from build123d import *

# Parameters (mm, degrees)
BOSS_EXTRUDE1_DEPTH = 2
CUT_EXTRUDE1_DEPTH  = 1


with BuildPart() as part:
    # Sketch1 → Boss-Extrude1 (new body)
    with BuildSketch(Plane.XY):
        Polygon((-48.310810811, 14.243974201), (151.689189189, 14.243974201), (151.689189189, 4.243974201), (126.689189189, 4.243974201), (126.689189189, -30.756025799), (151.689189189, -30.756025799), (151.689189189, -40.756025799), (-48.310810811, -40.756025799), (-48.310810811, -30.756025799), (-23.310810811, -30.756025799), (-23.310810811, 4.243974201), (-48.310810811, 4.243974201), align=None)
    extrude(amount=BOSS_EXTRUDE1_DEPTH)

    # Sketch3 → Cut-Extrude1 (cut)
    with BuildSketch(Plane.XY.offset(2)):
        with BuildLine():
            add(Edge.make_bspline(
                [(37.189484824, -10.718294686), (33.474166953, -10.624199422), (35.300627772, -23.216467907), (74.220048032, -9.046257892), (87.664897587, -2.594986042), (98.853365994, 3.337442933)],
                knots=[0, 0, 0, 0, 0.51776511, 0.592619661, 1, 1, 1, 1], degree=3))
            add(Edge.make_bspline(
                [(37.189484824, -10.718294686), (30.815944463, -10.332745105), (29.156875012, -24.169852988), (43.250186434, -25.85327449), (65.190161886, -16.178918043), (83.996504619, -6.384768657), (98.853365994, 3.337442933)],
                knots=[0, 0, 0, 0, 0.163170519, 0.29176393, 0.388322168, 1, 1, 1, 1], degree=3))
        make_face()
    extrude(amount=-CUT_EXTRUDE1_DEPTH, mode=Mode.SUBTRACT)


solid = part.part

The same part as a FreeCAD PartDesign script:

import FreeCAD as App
import Part
import Sketcher
from FreeCAD import Vector
Q = App.Units.Quantity


def add_polygon(sketch, points):
    """Adds a closed chain of lines whose ends are joined by coincident constraints."""
    first, n = sketch.GeometryCount, len(points)
    for a, b in zip(points, points[1:] + points[:1]):
        sketch.addGeometry(Part.LineSegment(App.Vector(*a, 0), App.Vector(*b, 0)), False)
    for i in range(n):
        sketch.addConstraint(Sketcher.Constraint("Coincident", first + i, 2, first + (i + 1) % n, 1))

doc = App.newDocument("Part")
body = doc.addObject("PartDesign::Body", "Body")

# Sketch on XY plane
sketch1 = doc.addObject("Sketcher::SketchObject", "Sketch")
body.addObject(sketch1)
sketch1.AttachmentSupport = (doc.XY_Plane, [""])
sketch1.MapMode = "FlatFace"
add_polygon(sketch1, [(151.689189, 14.243974), (-48.310811, 14.243974), (-48.310811, 4.243974), (-23.310811, 4.243974), (-23.310811, -30.756026), (-48.310811, -30.756026), (-48.310811, -40.756026), (151.689189, -40.756026), (151.689189, -30.756026), (126.689189, -30.756026), (126.689189, 4.243974), (151.689189, 4.243974)])  # lines 0-11
sketch1.addConstraint(Sketcher.Constraint("Horizontal", 0))
sketch1.addConstraint(Sketcher.Constraint("Vertical", 1))
sketch1.addConstraint(Sketcher.Constraint("Horizontal", 2))
sketch1.addConstraint(Sketcher.Constraint("Vertical", 3))
sketch1.addConstraint(Sketcher.Constraint("Horizontal", 4))
sketch1.addConstraint(Sketcher.Constraint("Vertical", 5))
sketch1.addConstraint(Sketcher.Constraint("Horizontal", 6))
sketch1.addConstraint(Sketcher.Constraint("Vertical", 7))
sketch1.addConstraint(Sketcher.Constraint("Horizontal", 8))
sketch1.addConstraint(Sketcher.Constraint("Vertical", 9))
sketch1.addConstraint(Sketcher.Constraint("Horizontal", 10))
sketch1.addConstraint(Sketcher.Constraint("Vertical", 11))
sketch1.addConstraint(Sketcher.Constraint("Horizontal", 4, 2, 7, 2))
sketch1.addConstraint(Sketcher.Constraint("Horizontal", 2, 2, 9, 2))
sketch1.addConstraint(Sketcher.Constraint("Vertical", 1, 2, 4, 2))
sketch1.addConstraint(Sketcher.Constraint("Vertical", 7, 2, 10, 2))
sketch1.addConstraint(Sketcher.Constraint("Equal", 4, 8))
sketch1.addConstraint(Sketcher.Constraint("Equal", 1, 5))
sketch1.addConstraint(Sketcher.Constraint("DistanceX", 0, 2, 0, 1, Q("200 mm")))
sketch1.addConstraint(Sketcher.Constraint("DistanceX", 2, 1, 2, 2, Q("25 mm")))
sketch1.addConstraint(Sketcher.Constraint("DistanceY", 1, 2, 1, 1, Q("10 mm")))
sketch1.addConstraint(Sketcher.Constraint("DistanceY", 3, 2, 3, 1, Q("35 mm")))
sketch1.addConstraint(Sketcher.Constraint("DistanceX", 0, 2, -1, 1, Q("48.310811 mm")))
sketch1.addConstraint(Sketcher.Constraint("DistanceY", -1, 1, 0, 2, Q("14.243974 mm")))
pad1 = doc.addObject("PartDesign::Pad", "Pad")
body.addObject(pad1)
pad1.Profile = sketch1
pad1.Length = 2

# Sketch on XY plane
sketch2 = doc.addObject("Sketcher::SketchObject", "Sketch001")
body.addObject(sketch2)
sketch2.AttachmentSupport = (doc.XY_Plane, [""])
sketch2.MapMode = "FlatFace"
sketch2.AttachmentOffset = App.Placement(Vector(0, 0, 2), App.Rotation())
sketch2.addGeometry(Part.BSplineCurve([Vector(37.189485, -10.718295, 0), Vector(33.474167, -10.624199, 0), Vector(35.300628, -23.216468, 0), Vector(74.220048, -9.046258, 0), Vector(87.664898, -2.594986, 0), Vector(98.853366, 3.337443, 0)], [4, 1, 1, 4], [0, 0.51776511, 0.592619661, 1], False, 3, [1, 1, 1, 1, 1, 1], False), False)
sketch2.addGeometry(Part.BSplineCurve([Vector(37.189485, -10.718295, 0), Vector(30.815944, -10.332745, 0), Vector(29.156875, -24.169853, 0), Vector(43.250186, -25.853274, 0), Vector(65.190162, -16.178918, 0), Vector(83.996505, -6.384769, 0), Vector(98.853366, 3.337443, 0)], [4, 1, 1, 1, 4], [0, 0.163170519, 0.29176393, 0.388322168, 1], False, 3, [1, 1, 1, 1, 1, 1, 1], False), False)
sketch2.addConstraint(Sketcher.Constraint("Block", 0))
sketch2.addConstraint(Sketcher.Constraint("Block", 1))
pocket1 = doc.addObject("PartDesign::Pocket", "Pocket")
body.addObject(pocket1)
pocket1.Profile = sketch2
pocket1.Length = 1

doc.recompute()
